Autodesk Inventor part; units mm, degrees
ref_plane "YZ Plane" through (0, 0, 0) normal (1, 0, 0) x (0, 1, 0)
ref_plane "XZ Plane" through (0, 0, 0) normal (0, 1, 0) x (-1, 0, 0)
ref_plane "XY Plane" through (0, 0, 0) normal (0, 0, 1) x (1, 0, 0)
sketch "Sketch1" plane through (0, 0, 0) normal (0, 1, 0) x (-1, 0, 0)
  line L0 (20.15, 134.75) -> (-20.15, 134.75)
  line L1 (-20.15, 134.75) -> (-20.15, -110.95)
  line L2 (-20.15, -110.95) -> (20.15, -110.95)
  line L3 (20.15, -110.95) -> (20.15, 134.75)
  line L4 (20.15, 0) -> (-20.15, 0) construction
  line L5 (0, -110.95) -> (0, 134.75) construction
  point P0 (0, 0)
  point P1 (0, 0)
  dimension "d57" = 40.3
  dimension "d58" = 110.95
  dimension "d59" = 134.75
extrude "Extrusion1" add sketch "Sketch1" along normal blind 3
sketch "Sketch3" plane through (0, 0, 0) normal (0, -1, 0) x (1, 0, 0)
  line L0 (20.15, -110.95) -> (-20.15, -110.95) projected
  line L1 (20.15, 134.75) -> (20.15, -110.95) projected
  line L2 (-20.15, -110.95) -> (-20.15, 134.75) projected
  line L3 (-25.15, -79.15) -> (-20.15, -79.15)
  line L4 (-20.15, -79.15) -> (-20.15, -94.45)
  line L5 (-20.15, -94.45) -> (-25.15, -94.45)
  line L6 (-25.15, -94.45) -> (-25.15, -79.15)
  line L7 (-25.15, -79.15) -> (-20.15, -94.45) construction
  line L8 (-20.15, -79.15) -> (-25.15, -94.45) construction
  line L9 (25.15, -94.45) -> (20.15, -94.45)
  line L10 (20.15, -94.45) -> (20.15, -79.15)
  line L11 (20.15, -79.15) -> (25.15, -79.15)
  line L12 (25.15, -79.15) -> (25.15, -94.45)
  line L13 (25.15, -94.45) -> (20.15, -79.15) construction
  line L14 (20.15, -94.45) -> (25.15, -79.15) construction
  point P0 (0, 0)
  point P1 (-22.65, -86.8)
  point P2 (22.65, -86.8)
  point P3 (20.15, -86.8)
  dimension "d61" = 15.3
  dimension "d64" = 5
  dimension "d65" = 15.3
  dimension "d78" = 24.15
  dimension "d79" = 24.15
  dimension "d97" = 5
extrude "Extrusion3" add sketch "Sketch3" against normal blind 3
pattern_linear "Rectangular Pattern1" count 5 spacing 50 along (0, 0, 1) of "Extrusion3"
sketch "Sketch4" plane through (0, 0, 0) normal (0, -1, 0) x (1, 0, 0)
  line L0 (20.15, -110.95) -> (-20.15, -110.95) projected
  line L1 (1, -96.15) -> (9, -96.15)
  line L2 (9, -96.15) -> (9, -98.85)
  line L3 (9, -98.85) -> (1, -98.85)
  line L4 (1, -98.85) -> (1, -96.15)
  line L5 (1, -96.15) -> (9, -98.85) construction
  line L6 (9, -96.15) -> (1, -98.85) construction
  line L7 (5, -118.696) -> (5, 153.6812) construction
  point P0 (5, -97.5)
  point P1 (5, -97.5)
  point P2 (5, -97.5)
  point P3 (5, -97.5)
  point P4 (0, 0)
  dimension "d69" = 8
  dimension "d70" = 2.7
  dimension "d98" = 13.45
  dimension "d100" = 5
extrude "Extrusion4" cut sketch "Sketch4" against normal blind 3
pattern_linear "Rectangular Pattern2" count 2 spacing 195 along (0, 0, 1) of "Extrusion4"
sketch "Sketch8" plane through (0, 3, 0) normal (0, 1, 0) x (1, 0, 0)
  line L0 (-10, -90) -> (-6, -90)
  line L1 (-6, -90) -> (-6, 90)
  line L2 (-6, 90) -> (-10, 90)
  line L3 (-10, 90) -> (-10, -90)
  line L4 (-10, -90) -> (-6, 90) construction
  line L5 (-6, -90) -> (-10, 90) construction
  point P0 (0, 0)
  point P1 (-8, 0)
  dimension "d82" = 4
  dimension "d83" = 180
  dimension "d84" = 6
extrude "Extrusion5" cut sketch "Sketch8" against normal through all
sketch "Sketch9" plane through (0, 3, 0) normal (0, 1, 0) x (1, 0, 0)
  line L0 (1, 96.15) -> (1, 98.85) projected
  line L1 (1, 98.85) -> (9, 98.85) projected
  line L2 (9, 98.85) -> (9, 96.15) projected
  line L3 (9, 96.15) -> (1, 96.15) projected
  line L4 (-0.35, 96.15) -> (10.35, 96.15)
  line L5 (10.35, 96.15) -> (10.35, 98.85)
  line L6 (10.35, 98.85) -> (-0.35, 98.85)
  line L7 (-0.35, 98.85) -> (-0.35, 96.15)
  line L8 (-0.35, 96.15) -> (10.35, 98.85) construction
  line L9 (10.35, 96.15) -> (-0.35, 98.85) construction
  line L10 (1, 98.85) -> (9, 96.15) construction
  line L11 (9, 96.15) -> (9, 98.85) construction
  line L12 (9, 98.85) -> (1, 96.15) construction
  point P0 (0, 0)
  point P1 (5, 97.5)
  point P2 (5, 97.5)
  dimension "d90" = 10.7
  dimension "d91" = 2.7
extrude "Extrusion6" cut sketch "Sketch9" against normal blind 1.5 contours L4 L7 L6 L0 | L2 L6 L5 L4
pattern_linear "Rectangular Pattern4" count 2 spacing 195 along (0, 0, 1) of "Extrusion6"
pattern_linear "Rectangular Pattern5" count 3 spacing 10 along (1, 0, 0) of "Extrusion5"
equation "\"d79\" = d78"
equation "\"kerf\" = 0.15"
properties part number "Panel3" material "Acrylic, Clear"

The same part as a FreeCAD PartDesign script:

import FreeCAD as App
import Part
import Sketcher
from FreeCAD import Vector
Q = App.Units.Quantity

doc = App.newDocument("Part")
body = doc.addObject("PartDesign::Body", "Body")

sketch1 = doc.addObject("Sketcher::SketchObject", "Sketch")
body.addObject(sketch1)
sketch1.AttachmentSupport = (doc.XZ_Plane, [""])
sketch1.MapMode = "FlatFace"
sketch1.addGeometry(Part.LineSegment(Vector(-20, -111, 0), Vector(-20, 135, 0)), False)
sketch1.addGeometry(Part.LineSegment(Vector(-20, 135, 0), Vector(20, 135, 0)), False)
sketch1.addGeometry(Part.LineSegment(Vector(20, 135, 0), Vector(20, -111, 0)), False)
sketch1.addGeometry(Part.LineSegment(Vector(20, -111, 0), Vector(-20, -111, 0)), False)
sketch1.addConstraint(Sketcher.Constraint("Coincident", 0, 2, 1, 1))
sketch1.addConstraint(Sketcher.Constraint("Coincident", 1, 2, 2, 1))
sketch1.addConstraint(Sketcher.Constraint("Coincident", 2, 2, 3, 1))
sketch1.addConstraint(Sketcher.Constraint("Coincident", 3, 2, 0, 1))
sketch1.addConstraint(Sketcher.Constraint("Vertical", 0))
sketch1.addConstraint(Sketcher.Constraint("Horizontal", 1))
sketch1.addConstraint(Sketcher.Constraint("Vertical", 2))
sketch1.addConstraint(Sketcher.Constraint("Horizontal", 3))
sketch1.addConstraint(Sketcher.Constraint("DistanceX", 1, 1, 1, 2, Q("40.3 mm")))
sketch1.addConstraint(Sketcher.Constraint("DistanceY", -1, 1, 0, 2, Q("134.75 mm")))
sketch1.addConstraint(Sketcher.Constraint("DistanceY", 2, 2, -1, 1, Q("110.95 mm")))
sketch1.addConstraint(Sketcher.Constraint("DistanceX", 0, 2, -1, 1, Q("20.15 mm")))
pad1 = doc.addObject("PartDesign::Pad", "Pad")
body.addObject(pad1)
pad1.Profile = sketch1
pad1.Length = 3
pad1.Reversed = True

sketch2 = doc.addObject("Sketcher::SketchObject", "Sketch001")
body.addObject(sketch2)
sketch2.AttachmentSupport = (doc.XZ_Plane, [""])
sketch2.MapMode = "FlatFace"
sketch2.addGeometry(Part.LineSegment(Vector(-25, -94, 0), Vector(-20, -94, 0)), False)
sketch2.addGeometry(Part.LineSegment(Vector(-20, -94, 0), Vector(-20, -79, 0)), False)
sketch2.addGeometry(Part.LineSegment(Vector(-20, -79, 0), Vector(-25, -79, 0)), False)
sketch2.addGeometry(Part.LineSegment(Vector(-25, -79, 0), Vector(-25, -94, 0)), False)
sketch2.addGeometry(Part.LineSegment(Vector(20, -79, 0), Vector(20, -94, 0)), False)
sketch2.addGeometry(Part.LineSegment(Vector(20, -94, 0), Vector(25, -94, 0)), False)
sketch2.addGeometry(Part.LineSegment(Vector(25, -94, 0), Vector(25, -79, 0)), False)
sketch2.addGeometry(Part.LineSegment(Vector(25, -79, 0), Vector(20, -79, 0)), False)
sketch2.addConstraint(Sketcher.Constraint("Coincident", 0, 2, 1, 1))
sketch2.addConstraint(Sketcher.Constraint("Coincident", 1, 2, 2, 1))
sketch2.addConstraint(Sketcher.Constraint("Coincident", 2, 2, 3, 1))
sketch2.addConstraint(Sketcher.Constraint("Coincident", 3, 2, 0, 1))
sketch2.addConstraint(Sketcher.Constraint("Coincident", 4, 2, 5, 1))
sketch2.addConstraint(Sketcher.Constraint("Coincident", 5, 2, 6, 1))
sketch2.addConstraint(Sketcher.Constraint("Coincident", 6, 2, 7, 1))
sketch2.addConstraint(Sketcher.Constraint("Coincident", 7, 2, 4, 1))
sketch2.addConstraint(Sketcher.Constraint("Horizontal", 0))
sketch2.addConstraint(Sketcher.Constraint("Vertical", 1))
sketch2.addConstraint(Sketcher.Constraint("Horizontal", 2))
sketch2.addConstraint(Sketcher.Constraint("Vertical", 3))
sketch2.addConstraint(Sketcher.Constraint("Vertical", 4))
sketch2.addConstraint(Sketcher.Constraint("Horizontal", 5))
sketch2.addConstraint(Sketcher.Constraint("Vertical", 6))
sketch2.addConstraint(Sketcher.Constraint("Horizontal", 7))
sketch2.addConstraint(Sketcher.Constraint("Symmetric", 0, 2, 4, 2, -2))
sketch2.addConstraint(Sketcher.Constraint("Symmetric", 2, 2, 6, 2, -2))
sketch2.addConstraint(Sketcher.Constraint("DistanceX", 0, 1, 0, 2, Q("5 mm")))
sketch2.addConstraint(Sketcher.Constraint("DistanceY", 1, 1, 1, 2, Q("15.3 mm")))
sketch2.addConstraint(Sketcher.Constraint("DistanceX", 0, 2, 4, 2, Q("40.3 mm")))
sketch2.addConstraint(Sketcher.Constraint("DistanceY", 0, 2, -1, 1, Q("94.45 mm")))
pad2 = doc.addObject("PartDesign::Pad", "Pad001")
body.addObject(pad2)
pad2.Profile = sketch2
pad2.Length = 3
pad2.Reversed = True
doc.recompute()

linearpattern = doc.addObject("PartDesign::LinearPattern", "LinearPattern")
body.addObject(linearpattern)
linearpattern.Originals = [pad2]
linearpattern.Direction = (doc.Z_Axis, [""])
linearpattern.Mode = "offset"
linearpattern.Offset = 50
linearpattern.Occurrences = 5
body.Tip = linearpattern

sketch3 = doc.addObject("Sketcher::SketchObject", "Sketch002")
body.addObject(sketch3)
sketch3.AttachmentSupport = (doc.XZ_Plane, [""])
sketch3.MapMode = "FlatFace"
sketch3.addGeometry(Part.LineSegment(Vector(9, -96.2, 0), Vector(1, -96.2, 0)), False)
sketch3.addGeometry(Part.LineSegment(Vector(1, -96.2, 0), Vector(1, -98.8, 0)), False)
sketch3.addGeometry(Part.LineSegment(Vector(1, -98.8, 0), Vector(9, -98.8, 0)), False)
sketch3.addGeometry(Part.LineSegment(Vector(9, -98.8, 0), Vector(9, -96.2, 0)), False)
sketch3.addConstraint(Sketcher.Constraint("Coincident", 0, 2, 1, 1))
sketch3.addConstraint(Sketcher.Constraint("Coincident", 1, 2, 2, 1))
sketch3.addConstraint(Sketcher.Constraint("Coincident", 2, 2, 3, 1))
sketch3.addConstraint(Sketcher.Constraint("Coincident", 3, 2, 0, 1))
sketch3.addConstraint(Sketcher.Constraint("Horizontal", 0))
sketch3.addConstraint(Sketcher.Constraint("Vertical", 1))
sketch3.addConstraint(Sketcher.Constraint("Horizontal", 2))
sketch3.addConstraint(Sketcher.Constraint("Vertical", 3))
sketch3.addConstraint(Sketcher.Constraint("DistanceX", 0, 2, 0, 1, Q("8 mm")))
sketch3.addConstraint(Sketcher.Constraint("DistanceY", 1, 2, 1, 1, Q("2.7 mm")))
sketch3.addConstraint(Sketcher.Constraint("DistanceX", -1, 1, 0, 2, Q("1 mm")))
sketch3.addConstraint(Sketcher.Constraint("DistanceY", 0, 2, -1, 1, Q("96.15 mm")))
pocket1 = doc.addObject("PartDesign::Pocket", "Pocket")
body.addObject(pocket1)
pocket1.Profile = sketch3
pocket1.Length = 3
doc.recompute()

linearpattern2 = doc.addObject("PartDesign::LinearPattern", "LinearPattern001")
body.addObject(linearpattern2)
linearpattern2.Originals = [pocket1]
linearpattern2.Direction = (doc.Z_Axis, [""])
linearpattern2.Mode = "offset"
linearpattern2.Offset = 195
linearpattern2.Occurrences = 2
body.Tip = linearpattern2

sketch4 = doc.addObject("Sketcher::SketchObject", "Sketch003")
body.addObject(sketch4)
sketch4.AttachmentSupport = (doc.XZ_Plane, [""])
sketch4.MapMode = "FlatFace"
sketch4.AttachmentOffset = App.Placement(Vector(0, 0, -3), App.Rotation())
sketch4.addGeometry(Part.LineSegment(Vector(-10, -90, 0), Vector(-10, 90, 0)), False)
sketch4.addGeometry(Part.LineSegment(Vector(-10, 90, 0), Vector(-6, 90, 0)), False)
sketch4.addGeometry(Part.LineSegment(Vector(-6, 90, 0), Vector(-6, -90, 0)), False)
sketch4.addGeometry(Part.LineSegment(Vector(-6, -90, 0), Vector(-10, -90, 0)), False)
sketch4.addConstraint(Sketcher.Constraint("Coincident", 0, 2, 1, 1))
sketch4.addConstraint(Sketcher.Constraint("Coincident", 1, 2, 2, 1))
sketch4.addConstraint(Sketcher.Constraint("Coincident", 2, 2, 3, 1))
sketch4.addConstraint(Sketcher.Constraint("Coincident", 3, 2, 0, 1))
sketch4.addConstraint(Sketcher.Constraint("Vertical", 0))
sketch4.addConstraint(Sketcher.Constraint("Horizontal", 1))
sketch4.addConstraint(Sketcher.Constraint("Vertical", 2))
sketch4.addConstraint(Sketcher.Constraint("Horizontal", 3))
sketch4.addConstraint(Sketcher.Constraint("DistanceX", 1, 1, 1, 2, Q("4 mm")))
sketch4.addConstraint(Sketcher.Constraint("DistanceY", 0, 1, 0, 2, Q("180 mm")))
sketch4.addConstraint(Sketcher.Constraint("DistanceX", 1, 2, -1, 1, Q("6 mm")))
sketch4.addConstraint(Sketcher.Constraint("DistanceY", -1, 1, 0, 2, Q("90 mm")))
pocket2 = doc.addObject("PartDesign::Pocket", "Pocket001")
body.addObject(pocket2)
pocket2.Profile = sketch4
pocket2.Type = "ThroughAll"
pocket2.Reversed = True

sketch5 = doc.addObject("Sketcher::SketchObject", "Sketch004")
body.addObject(sketch5)
sketch5.AttachmentSupport = (doc.XZ_Plane, [""])
sketch5.MapMode = "FlatFace"
sketch5.AttachmentOffset = App.Placement(Vector(0, 0, -3), App.Rotation())
sketch5.addGeometry(Part.LineSegment(Vector(-0.3, -96.2, 0), Vector(1, -96.2, 0)), False)
sketch5.addGeometry(Part.LineSegment(Vector(1, -96.2, 0), Vector(1, -98.8, 0)), False)
sketch5.addGeometry(Part.LineSegment(Vector(1, -98.8, 0), Vector(-0.3, -98.8, 0)), False)
sketch5.addGeometry(Part.LineSegment(Vector(-0.3, -98.8, 0), Vector(-0.3, -96.2, 0)), False)
sketch5.addGeometry(Part.LineSegment(Vector(9, -98.8, 0), Vector(9, -96.2, 0)), False)
sketch5.addGeometry(Part.LineSegment(Vector(9, -96.2, 0), Vector(10.3, -96.2, 0)), False)
sketch5.addGeometry(Part.LineSegment(Vector(10.3, -96.2, 0), Vector(10.3, -98.8, 0)), False)
sketch5.addGeometry(Part.LineSegment(Vector(10.3, -98.8, 0), Vector(9, -98.8, 0)), False)
sketch5.addConstraint(Sketcher.Constraint("Coincident", 0, 2, 1, 1))
sketch5.addConstraint(Sketcher.Constraint("Coincident", 1, 2, 2, 1))
sketch5.addConstraint(Sketcher.Constraint("Coincident", 2, 2, 3, 1))
sketch5.addConstraint(Sketcher.Constraint("Coincident", 3, 2, 0, 1))
sketch5.addConstraint(Sketcher.Constraint("Coincident", 4, 2, 5, 1))
sketch5.addConstraint(Sketcher.Constraint("Coincident", 5, 2, 6, 1))
sketch5.addConstraint(Sketcher.Constraint("Coincident", 6, 2, 7, 1))
sketch5.addConstraint(Sketcher.Constraint("Coincident", 7, 2, 4, 1))
sketch5.addConstraint(Sketcher.Constraint("Horizontal", 0))
sketch5.addConstraint(Sketcher.Constraint("Vertical", 1))
sketch5.addConstraint(Sketcher.Constraint("Horizontal", 2))
sketch5.addConstraint(Sketcher.Constraint("Vertical", 3))
sketch5.addConstraint(Sketcher.Constraint("Vertical", 4))
sketch5.addConstraint(Sketcher.Constraint("Horizontal", 5))
sketch5.addConstraint(Sketcher.Constraint("Vertical", 6))
sketch5.addConstraint(Sketcher.Constraint("Horizontal", 7))
sketch5.addConstraint(Sketcher.Constraint("Horizontal", 3, 2, 4, 2))
sketch5.addConstraint(Sketcher.Constraint("Horizontal", 2, 2, 6, 2))
sketch5.addConstraint(Sketcher.Constraint("Equal", 2, 5))
sketch5.addConstraint(Sketcher.Constraint("DistanceY", 1, 2, 1, 1, Q("2.7 mm")))
sketch5.addConstraint(Sketcher.Constraint("DistanceX", 3, 2, 5, 2, Q("10.7 mm")))
sketch5.addConstraint(Sketcher.Constraint("DistanceX", -1, 1, 0, 2, Q("1 mm")))
sketch5.addConstraint(Sketcher.Constraint("DistanceX", -1, 1, 4, 2, Q("9 mm")))
sketch5.addConstraint(Sketcher.Constraint("DistanceY", 0, 2, -1, 1, Q("96.15 mm")))
pocket3 = doc.addObject("PartDesign::Pocket", "Pocket002")
body.addObject(pocket3)
pocket3.Profile = sketch5
pocket3.Length = 1.5
pocket3.Reversed = True
doc.recompute()

linearpattern3 = doc.addObject("PartDesign::LinearPattern", "LinearPattern002")
body.addObject(linearpattern3)
linearpattern3.Originals = [pocket3]
linearpattern3.Direction = (doc.Z_Axis, [""])
linearpattern3.Mode = "offset"
linearpattern3.Offset = 195
linearpattern3.Occurrences = 2
body.Tip = linearpattern3
doc.recompute()

linearpattern4 = doc.addObject("PartDesign::LinearPattern", "LinearPattern003")
body.addObject(linearpattern4)
linearpattern4.Originals = [pocket2]
linearpattern4.Direction = (doc.X_Axis, [""])
linearpattern4.Mode = "offset"
linearpattern4.Offset = 10
linearpattern4.Occurrences = 3
body.Tip = linearpattern4

doc.recompute()
